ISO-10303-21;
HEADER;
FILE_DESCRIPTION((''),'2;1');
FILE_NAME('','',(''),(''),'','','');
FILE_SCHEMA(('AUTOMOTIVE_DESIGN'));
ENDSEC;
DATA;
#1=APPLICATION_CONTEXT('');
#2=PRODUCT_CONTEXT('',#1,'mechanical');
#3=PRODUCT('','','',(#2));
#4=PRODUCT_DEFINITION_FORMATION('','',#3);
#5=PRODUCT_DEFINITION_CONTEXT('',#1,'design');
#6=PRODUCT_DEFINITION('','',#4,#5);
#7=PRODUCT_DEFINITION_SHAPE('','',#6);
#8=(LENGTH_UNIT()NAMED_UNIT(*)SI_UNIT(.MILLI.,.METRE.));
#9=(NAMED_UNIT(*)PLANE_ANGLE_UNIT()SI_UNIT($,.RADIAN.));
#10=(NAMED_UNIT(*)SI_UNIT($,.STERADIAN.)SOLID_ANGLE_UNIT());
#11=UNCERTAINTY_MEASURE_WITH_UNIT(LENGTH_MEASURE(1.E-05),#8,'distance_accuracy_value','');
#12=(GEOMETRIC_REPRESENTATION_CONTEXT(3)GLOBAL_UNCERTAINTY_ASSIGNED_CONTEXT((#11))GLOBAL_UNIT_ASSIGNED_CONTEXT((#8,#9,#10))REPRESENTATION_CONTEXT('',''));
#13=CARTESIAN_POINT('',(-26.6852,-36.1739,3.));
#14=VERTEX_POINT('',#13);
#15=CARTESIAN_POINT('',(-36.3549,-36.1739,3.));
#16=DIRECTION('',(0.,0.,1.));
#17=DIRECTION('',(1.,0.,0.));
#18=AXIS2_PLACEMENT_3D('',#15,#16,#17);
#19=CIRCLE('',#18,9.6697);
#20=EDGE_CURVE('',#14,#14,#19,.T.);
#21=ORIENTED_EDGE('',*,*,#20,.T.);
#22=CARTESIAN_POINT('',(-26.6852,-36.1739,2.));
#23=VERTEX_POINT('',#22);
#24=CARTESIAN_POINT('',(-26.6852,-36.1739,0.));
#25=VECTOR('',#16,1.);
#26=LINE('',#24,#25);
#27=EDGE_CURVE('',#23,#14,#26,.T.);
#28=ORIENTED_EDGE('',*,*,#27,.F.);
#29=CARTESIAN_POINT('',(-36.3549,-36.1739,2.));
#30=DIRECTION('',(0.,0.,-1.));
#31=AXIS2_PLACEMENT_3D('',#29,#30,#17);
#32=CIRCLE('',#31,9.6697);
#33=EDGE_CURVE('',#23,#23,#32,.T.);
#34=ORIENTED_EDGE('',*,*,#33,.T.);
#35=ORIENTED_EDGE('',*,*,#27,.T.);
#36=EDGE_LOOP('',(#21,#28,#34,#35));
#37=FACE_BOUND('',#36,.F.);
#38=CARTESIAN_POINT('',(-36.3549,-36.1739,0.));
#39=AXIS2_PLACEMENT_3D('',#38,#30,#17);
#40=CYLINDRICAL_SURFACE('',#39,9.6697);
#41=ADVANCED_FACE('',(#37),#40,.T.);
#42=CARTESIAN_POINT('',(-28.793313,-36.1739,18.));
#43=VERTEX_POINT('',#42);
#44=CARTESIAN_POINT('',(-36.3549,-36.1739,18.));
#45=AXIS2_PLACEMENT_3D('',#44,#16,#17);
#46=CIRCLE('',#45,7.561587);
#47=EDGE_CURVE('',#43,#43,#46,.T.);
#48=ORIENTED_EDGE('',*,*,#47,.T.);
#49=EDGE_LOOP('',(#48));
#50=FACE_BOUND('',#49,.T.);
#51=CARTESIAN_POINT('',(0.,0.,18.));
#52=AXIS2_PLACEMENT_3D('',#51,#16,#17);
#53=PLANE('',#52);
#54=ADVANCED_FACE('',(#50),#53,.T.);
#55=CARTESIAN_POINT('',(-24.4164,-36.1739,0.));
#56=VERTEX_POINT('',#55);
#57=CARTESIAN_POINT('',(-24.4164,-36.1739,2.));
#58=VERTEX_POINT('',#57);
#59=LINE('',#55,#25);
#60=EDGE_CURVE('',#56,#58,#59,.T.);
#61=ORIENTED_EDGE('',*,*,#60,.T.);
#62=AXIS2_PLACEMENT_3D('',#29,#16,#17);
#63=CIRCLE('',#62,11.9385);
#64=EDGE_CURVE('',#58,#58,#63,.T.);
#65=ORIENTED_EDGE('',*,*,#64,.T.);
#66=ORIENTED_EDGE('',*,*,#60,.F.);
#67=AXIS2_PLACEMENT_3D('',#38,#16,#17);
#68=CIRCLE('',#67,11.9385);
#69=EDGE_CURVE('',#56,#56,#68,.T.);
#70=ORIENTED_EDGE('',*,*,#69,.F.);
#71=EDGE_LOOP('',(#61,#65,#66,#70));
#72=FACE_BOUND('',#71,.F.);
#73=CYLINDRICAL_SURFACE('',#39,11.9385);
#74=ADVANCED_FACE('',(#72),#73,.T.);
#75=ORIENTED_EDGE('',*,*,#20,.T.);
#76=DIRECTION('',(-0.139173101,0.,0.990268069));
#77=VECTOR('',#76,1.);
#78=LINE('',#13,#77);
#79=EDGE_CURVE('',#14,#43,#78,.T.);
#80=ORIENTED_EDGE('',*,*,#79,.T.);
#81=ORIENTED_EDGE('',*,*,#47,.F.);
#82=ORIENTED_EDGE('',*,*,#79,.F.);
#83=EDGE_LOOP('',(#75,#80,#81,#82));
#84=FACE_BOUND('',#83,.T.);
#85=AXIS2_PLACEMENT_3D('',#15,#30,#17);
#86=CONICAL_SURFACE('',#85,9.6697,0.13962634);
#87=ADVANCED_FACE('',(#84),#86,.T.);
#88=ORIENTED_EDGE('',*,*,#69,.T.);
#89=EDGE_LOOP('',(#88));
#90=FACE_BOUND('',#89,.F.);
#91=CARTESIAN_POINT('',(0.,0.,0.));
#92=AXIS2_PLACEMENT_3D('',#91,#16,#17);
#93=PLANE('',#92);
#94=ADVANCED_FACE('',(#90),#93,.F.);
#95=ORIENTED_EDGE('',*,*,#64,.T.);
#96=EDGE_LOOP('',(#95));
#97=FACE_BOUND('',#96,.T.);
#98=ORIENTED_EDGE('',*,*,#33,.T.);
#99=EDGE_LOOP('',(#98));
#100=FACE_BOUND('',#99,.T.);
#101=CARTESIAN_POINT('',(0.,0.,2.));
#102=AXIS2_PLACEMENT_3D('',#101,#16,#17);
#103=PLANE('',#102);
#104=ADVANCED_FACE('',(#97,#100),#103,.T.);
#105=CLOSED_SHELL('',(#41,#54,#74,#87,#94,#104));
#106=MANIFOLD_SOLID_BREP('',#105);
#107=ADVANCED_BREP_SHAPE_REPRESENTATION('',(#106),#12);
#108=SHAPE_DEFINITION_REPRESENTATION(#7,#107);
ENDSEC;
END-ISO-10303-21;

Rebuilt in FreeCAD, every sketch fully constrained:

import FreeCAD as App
import Part
import Sketcher
from FreeCAD import Vector
Q = App.Units.Quantity


def edges_at(feature, points):
    """Names of the edges that pass closest to the given points."""
    edges = feature.Shape.Edges
    near = lambda p: min(range(len(edges)), key=lambda i: edges[i].distToShape(Part.Vertex(*p))[0])
    return sorted({f"Edge{near(p) + 1}" for p in points})

doc = App.newDocument("Part")
body = doc.addObject("PartDesign::Body", "Body")

sketch1 = body.newObject("Sketcher::SketchObject", "Sketch")
sketch1.AttachmentSupport = (doc.getObject("XY_Plane"), [""])
sketch1.MapMode = "FlatFace"
sketch1.addGeometry(Part.Circle(Vector(-36, -36, 0), Vector(0, 0, 1), 10), False)
sketch1.addConstraint(Sketcher.Constraint("Diameter", 0, Q("19.3394 mm")))
sketch1.addConstraint(Sketcher.Constraint("DistanceX", 0, 3, -1, 1, Q("36.355 mm")))
sketch1.addConstraint(Sketcher.Constraint("DistanceY", 0, 3, -1, 1, Q("36.174 mm")))
pad1 = body.newObject("PartDesign::Pad", "Pad")
pad1.Profile = sketch1
pad1.Length = 18
doc.recompute()

chamfer = body.newObject("PartDesign::Chamfer", "Chamfer")
chamfer.Base = (pad1, edges_at(pad1, [(-46.025, -36.174, 18)]))
chamfer.ChamferType = "Distance and Angle"
chamfer.Size = 15
chamfer.Angle = 8

sketch2 = body.newObject("Sketcher::SketchObject", "Sketch001")
sketch2.AttachmentSupport = (doc.getObject("XY_Plane"), [""])
sketch2.MapMode = "FlatFace"
sketch2.addGeometry(Part.Circle(Vector(-36, -36, 0), Vector(0, 0, 1), 12), False)
sketch2.addGeometry(Part.Circle(Vector(-36, -36, 0), Vector(0, 0, 1), 8), False)
sketch2.addConstraint(Sketcher.Constraint("Coincident", 1, 3, 0, 3))
sketch2.addConstraint(Sketcher.Constraint("Diameter", 0, Q("23.877 mm")))
sketch2.addConstraint(Sketcher.Constraint("Diameter", 1, Q("15.1232 mm")))
sketch2.addConstraint(Sketcher.Constraint("DistanceX", 0, 3, -1, 1, Q("36.355 mm")))
sketch2.addConstraint(Sketcher.Constraint("DistanceY", 0, 3, -1, 1, Q("36.174 mm")))
pad2 = body.newObject("PartDesign::Pad", "Pad001")
pad2.Profile = sketch2
pad2.Length = 2

doc.recompute()
